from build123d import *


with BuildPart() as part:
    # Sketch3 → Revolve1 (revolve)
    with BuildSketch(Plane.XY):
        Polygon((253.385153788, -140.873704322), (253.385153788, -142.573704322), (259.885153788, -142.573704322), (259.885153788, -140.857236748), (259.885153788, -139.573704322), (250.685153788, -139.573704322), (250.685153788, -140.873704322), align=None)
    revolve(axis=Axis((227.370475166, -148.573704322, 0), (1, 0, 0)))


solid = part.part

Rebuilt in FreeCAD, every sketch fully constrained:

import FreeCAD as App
import Part
import Sketcher

V = App.Vector


def add_polygon(sketch, points):
    """Adds a closed chain of lines whose ends are joined by coincident constraints."""
    first, n = sketch.GeometryCount, len(points)
    for a, b in zip(points, points[1:] + points[:1]):
        sketch.addGeometry(Part.LineSegment(App.Vector(*a, 0), App.Vector(*b, 0)), False)
    for i in range(n):
        sketch.addConstraint(Sketcher.Constraint("Coincident", first + i, 2, first + (i + 1) % n, 1))

doc = App.newDocument("Part")
body = doc.addObject("PartDesign::Body", "Body")

# Sketch on XY plane
sketch1 = body.newObject("Sketcher::SketchObject", "Sketch")
sketch1.AttachmentSupport = (doc.getObject("XY_Plane"), [""])
sketch1.MapMode = "FlatFace"
add_polygon(sketch1, [(253.4, -140.9), (253.4, -142.6), (259.9, -142.6), (259.9, -139.6), (250.7, -139.6), (250.7, -140.9)])  # lines 0-5
sketch1.addGeometry(Part.LineSegment(V(250.7, -148.6, 0), V(259.9, -148.6, 0)), True)  # axis
sketch1.addConstraint(Sketcher.Constraint("Vertical", 0))
sketch1.addConstraint(Sketcher.Constraint("Horizontal", 1))
sketch1.addConstraint(Sketcher.Constraint("Vertical", 2))
sketch1.addConstraint(Sketcher.Constraint("Horizontal", 3))
sketch1.addConstraint(Sketcher.Constraint("Vertical", 4))
sketch1.addConstraint(Sketcher.Constraint("Horizontal", 5))
sketch1.addConstraint(Sketcher.Constraint("Horizontal", 6))
sketch1.addConstraint(Sketcher.Constraint("Vertical", 4, 2, 6, 1))
sketch1.addConstraint(Sketcher.Constraint("Vertical", 2, 2, 6, 2))
sketch1.addConstraint(Sketcher.Constraint("DistanceY", 2, 1, 2, 2, 3.0))
sketch1.addConstraint(Sketcher.Constraint("DistanceX", 1, 1, 1, 2, 6.5))
sketch1.addConstraint(Sketcher.Constraint("DistanceX", 3, 2, 3, 1, 9.2))
sketch1.addConstraint(Sketcher.Constraint("DistanceY", 0, 2, 0, 1, 1.7))
sketch1.addConstraint(Sketcher.Constraint("DistanceY", 6, 1, 0, 2, 6.0))
sketch1.addConstraint(Sketcher.Constraint("DistanceX", -1, 1, 0, 2, 253.385154))
sketch1.addConstraint(Sketcher.Constraint("DistanceY", 0, 2, -1, 1, 142.573704))
revolution = body.newObject("PartDesign::Revolution", "Revolution")
revolution.Profile = sketch1
revolution.ReferenceAxis = (sketch1, ["Axis0"])
revolution.Angle = 360

doc.recompute()
